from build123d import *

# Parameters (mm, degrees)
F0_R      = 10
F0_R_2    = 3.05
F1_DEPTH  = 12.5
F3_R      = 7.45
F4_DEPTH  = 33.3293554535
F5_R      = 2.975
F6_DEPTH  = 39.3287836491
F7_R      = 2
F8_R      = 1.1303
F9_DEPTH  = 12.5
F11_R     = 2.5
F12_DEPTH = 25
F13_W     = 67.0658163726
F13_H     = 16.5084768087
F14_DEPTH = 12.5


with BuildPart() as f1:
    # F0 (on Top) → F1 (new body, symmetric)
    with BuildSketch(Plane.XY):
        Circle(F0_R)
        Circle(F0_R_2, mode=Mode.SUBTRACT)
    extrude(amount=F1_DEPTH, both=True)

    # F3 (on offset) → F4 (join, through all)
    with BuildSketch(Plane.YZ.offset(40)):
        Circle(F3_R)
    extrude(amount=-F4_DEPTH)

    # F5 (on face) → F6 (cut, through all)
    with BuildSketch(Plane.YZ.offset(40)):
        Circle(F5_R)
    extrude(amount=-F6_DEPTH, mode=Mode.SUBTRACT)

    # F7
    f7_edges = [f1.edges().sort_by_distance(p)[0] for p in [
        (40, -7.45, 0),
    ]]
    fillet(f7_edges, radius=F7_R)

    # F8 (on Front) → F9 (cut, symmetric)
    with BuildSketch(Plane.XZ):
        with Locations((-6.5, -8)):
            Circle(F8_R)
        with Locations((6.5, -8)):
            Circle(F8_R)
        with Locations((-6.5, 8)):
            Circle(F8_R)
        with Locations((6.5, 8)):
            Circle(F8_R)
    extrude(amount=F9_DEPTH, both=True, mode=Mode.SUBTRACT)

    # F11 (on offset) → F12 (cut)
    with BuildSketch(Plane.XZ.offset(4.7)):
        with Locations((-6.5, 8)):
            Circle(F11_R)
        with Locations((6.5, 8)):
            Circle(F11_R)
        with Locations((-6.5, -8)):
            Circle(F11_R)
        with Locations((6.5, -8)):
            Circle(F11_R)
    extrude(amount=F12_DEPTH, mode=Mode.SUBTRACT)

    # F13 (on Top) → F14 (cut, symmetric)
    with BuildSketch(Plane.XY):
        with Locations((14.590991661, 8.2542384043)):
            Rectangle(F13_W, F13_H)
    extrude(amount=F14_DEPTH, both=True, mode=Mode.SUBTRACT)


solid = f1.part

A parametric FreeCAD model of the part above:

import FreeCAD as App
import Part
import Sketcher
from FreeCAD import Vector


def edges_at(feature, points):
    """Names of the edges that pass closest to the given points."""
    edges = feature.Shape.Edges
    near = lambda p: min(range(len(edges)), key=lambda i: edges[i].distToShape(Part.Vertex(*p))[0])
    return sorted({f"Edge{near(p) + 1}" for p in points})


def add_polygon(sketch, points):
    """Adds a closed chain of lines whose ends are joined by coincident constraints."""
    first, n = sketch.GeometryCount, len(points)
    for a, b in zip(points, points[1:] + points[:1]):
        sketch.addGeometry(Part.LineSegment(App.Vector(*a, 0), App.Vector(*b, 0)), False)
    for i in range(n):
        sketch.addConstraint(Sketcher.Constraint("Coincident", first + i, 2, first + (i + 1) % n, 1))

doc = App.newDocument("Part")
body = doc.addObject("PartDesign::Body", "Body")

sketch1 = body.newObject("Sketcher::SketchObject", "Sketch")
sketch1.AttachmentSupport = (doc.getObject("XY_Plane"), [""])
sketch1.MapMode = "FlatFace"
sketch1.addGeometry([
    Part.Circle(Vector(0, 0, 0), Vector(0, 0, 1), 10),
    Part.Circle(Vector(0, 0, 0), Vector(0, 0, 1), 3),
], False)
sketch1.addConstraint([
    Sketcher.Constraint("Coincident", 0, 3, -1, 1),
    Sketcher.Constraint("Coincident", 1, 3, -1, 1),
    Sketcher.Constraint("Diameter", 0, 20.0),
    Sketcher.Constraint("Diameter", 1, 6.1),
])
pad1 = body.newObject("PartDesign::Pad", "Pad")
pad1.Profile = sketch1
pad1.Length = 25
pad1.Midplane = True

sketch2 = body.newObject("Sketcher::SketchObject", "Sketch001")
sketch2.AttachmentSupport = (doc.getObject("YZ_Plane"), [""])
sketch2.MapMode = "FlatFace"
sketch2.AttachmentOffset = App.Placement(Vector(0, 0, 40), App.Rotation())
sketch2.addGeometry(Part.Circle(Vector(0, 0, 0), Vector(0, 0, 1), 7), False)
sketch2.addConstraint([
    Sketcher.Constraint("Coincident", 0, 3, -1, 1),
    Sketcher.Constraint("Diameter", 0, 14.9),
])
pad2 = body.newObject("PartDesign::Pad", "Pad001")
pad2.Profile = sketch2
pad2.Type = "UpToLast"
pad2.Reversed = True

sketch3 = body.newObject("Sketcher::SketchObject", "Sketch002")
sketch3.AttachmentSupport = (doc.getObject("YZ_Plane"), [""])
sketch3.MapMode = "FlatFace"
sketch3.AttachmentOffset = App.Placement(Vector(0, 0, 40), App.Rotation())
sketch3.addGeometry(Part.Circle(Vector(0, 0, 0), Vector(0, 0, 1), 3), False)
sketch3.addConstraint([
    Sketcher.Constraint("Coincident", 0, 3, -1, 1),
    Sketcher.Constraint("Diameter", 0, 5.95),
])
pocket1 = body.newObject("PartDesign::Pocket", "Pocket")
pocket1.Profile = sketch3
pocket1.Length = 39.328784
doc.recompute()

fillet = body.newObject("PartDesign::Fillet", "Fillet")
fillet.Base = (pocket1, edges_at(pocket1, [(40, -7.45, 0)]))
fillet.Radius = 2

sketch4 = body.newObject("Sketcher::SketchObject", "Sketch003")
sketch4.AttachmentSupport = (doc.getObject("XZ_Plane"), [""])
sketch4.MapMode = "FlatFace"
sketch4.addGeometry([
    Part.Circle(Vector(-6.5, -8, 0), Vector(0, 0, 1), 1.1),
    Part.Circle(Vector(6.5, -8, 0), Vector(0, 0, 1), 1.1),
    Part.Circle(Vector(-6.5, 8, 0), Vector(0, 0, 1), 1.1),
    Part.Circle(Vector(6.5, 8, 0), Vector(0, 0, 1), 1.1),
], False)
sketch4.addConstraint([
    Sketcher.Constraint("Equal", 0, 1),
    Sketcher.Constraint("Equal", 1, 2),
    Sketcher.Constraint("Equal", 2, 3),
    Sketcher.Constraint("Symmetric", 1, 3, 2, 3, -1, 1),
    Sketcher.Constraint("Symmetric", 0, 3, 3, 3, -1, 1),
    Sketcher.Constraint("Symmetric", 0, 3, 1, 3, -2),
    Sketcher.Constraint("DistanceY", 0, 3, -1, 1, 8.0),
    Sketcher.Constraint("DistanceX", 0, 3, 1, 3, 13.0),
    Sketcher.Constraint("Diameter", 0, 2.2606),
])
pocket2 = body.newObject("PartDesign::Pocket", "Pocket001")
pocket2.Profile = sketch4
pocket2.Length = 25
pocket2.Midplane = True

sketch5 = body.newObject("Sketcher::SketchObject", "Sketch004")
sketch5.AttachmentSupport = (doc.getObject("XZ_Plane"), [""])
sketch5.MapMode = "FlatFace"
sketch5.AttachmentOffset = App.Placement(Vector(0, 0, 4.7), App.Rotation())
sketch5.addGeometry([
    Part.Circle(Vector(-6.5, 8, 0), Vector(0, 0, 1), 2.5),
    Part.Circle(Vector(6.5, 8, 0), Vector(0, 0, 1), 2.5),
    Part.Circle(Vector(-6.5, -8, 0), Vector(0, 0, 1), 2.5),
    Part.Circle(Vector(6.5, -8, 0), Vector(0, 0, 1), 2.5),
], False)
sketch5.addConstraint([
    Sketcher.Constraint("Equal", 0, 1),
    Sketcher.Constraint("Equal", 1, 2),
    Sketcher.Constraint("Equal", 2, 3),
    Sketcher.Constraint("Symmetric", 1, 3, 2, 3, -1, 1),
    Sketcher.Constraint("Symmetric", 0, 3, 3, 3, -1, 1),
    Sketcher.Constraint("Symmetric", 0, 3, 1, 3, -2),
    Sketcher.Constraint("Diameter", 0, 5.0),
    Sketcher.Constraint("DistanceY", -1, 1, 0, 3, 8.0),
    Sketcher.Constraint("DistanceX", 0, 3, 1, 3, 13.0),
])
pocket3 = body.newObject("PartDesign::Pocket", "Pocket002")
pocket3.Profile = sketch5
pocket3.Length = 25
pocket3.Reversed = True

sketch6 = body.newObject("Sketcher::SketchObject", "Sketch005")
sketch6.AttachmentSupport = (doc.getObject("XY_Plane"), [""])
sketch6.MapMode = "FlatFace"
add_polygon(sketch6, [(-19, 17), (-19, 0), (48, 0), (48, 17)])
sketch6.addConstraint([
    Sketcher.Constraint("Vertical", 0),
    Sketcher.Constraint("Horizontal", 1),
    Sketcher.Constraint("Vertical", 2),
    Sketcher.Constraint("Horizontal", 3),
    Sketcher.Constraint("PointOnObject", 0, 2, -1),
    Sketcher.Constraint("DistanceX", -1, 1, 1, 2, 48.1239),
    Sketcher.Constraint("DistanceX", 1, 1, 1, 2, 67.065816),
    Sketcher.Constraint("DistanceY", 0, 2, 0, 1, 16.508477),
])
pocket4 = body.newObject("PartDesign::Pocket", "Pocket003")
pocket4.Profile = sketch6
pocket4.Length = 25
pocket4.Midplane = True

doc.recompute()
